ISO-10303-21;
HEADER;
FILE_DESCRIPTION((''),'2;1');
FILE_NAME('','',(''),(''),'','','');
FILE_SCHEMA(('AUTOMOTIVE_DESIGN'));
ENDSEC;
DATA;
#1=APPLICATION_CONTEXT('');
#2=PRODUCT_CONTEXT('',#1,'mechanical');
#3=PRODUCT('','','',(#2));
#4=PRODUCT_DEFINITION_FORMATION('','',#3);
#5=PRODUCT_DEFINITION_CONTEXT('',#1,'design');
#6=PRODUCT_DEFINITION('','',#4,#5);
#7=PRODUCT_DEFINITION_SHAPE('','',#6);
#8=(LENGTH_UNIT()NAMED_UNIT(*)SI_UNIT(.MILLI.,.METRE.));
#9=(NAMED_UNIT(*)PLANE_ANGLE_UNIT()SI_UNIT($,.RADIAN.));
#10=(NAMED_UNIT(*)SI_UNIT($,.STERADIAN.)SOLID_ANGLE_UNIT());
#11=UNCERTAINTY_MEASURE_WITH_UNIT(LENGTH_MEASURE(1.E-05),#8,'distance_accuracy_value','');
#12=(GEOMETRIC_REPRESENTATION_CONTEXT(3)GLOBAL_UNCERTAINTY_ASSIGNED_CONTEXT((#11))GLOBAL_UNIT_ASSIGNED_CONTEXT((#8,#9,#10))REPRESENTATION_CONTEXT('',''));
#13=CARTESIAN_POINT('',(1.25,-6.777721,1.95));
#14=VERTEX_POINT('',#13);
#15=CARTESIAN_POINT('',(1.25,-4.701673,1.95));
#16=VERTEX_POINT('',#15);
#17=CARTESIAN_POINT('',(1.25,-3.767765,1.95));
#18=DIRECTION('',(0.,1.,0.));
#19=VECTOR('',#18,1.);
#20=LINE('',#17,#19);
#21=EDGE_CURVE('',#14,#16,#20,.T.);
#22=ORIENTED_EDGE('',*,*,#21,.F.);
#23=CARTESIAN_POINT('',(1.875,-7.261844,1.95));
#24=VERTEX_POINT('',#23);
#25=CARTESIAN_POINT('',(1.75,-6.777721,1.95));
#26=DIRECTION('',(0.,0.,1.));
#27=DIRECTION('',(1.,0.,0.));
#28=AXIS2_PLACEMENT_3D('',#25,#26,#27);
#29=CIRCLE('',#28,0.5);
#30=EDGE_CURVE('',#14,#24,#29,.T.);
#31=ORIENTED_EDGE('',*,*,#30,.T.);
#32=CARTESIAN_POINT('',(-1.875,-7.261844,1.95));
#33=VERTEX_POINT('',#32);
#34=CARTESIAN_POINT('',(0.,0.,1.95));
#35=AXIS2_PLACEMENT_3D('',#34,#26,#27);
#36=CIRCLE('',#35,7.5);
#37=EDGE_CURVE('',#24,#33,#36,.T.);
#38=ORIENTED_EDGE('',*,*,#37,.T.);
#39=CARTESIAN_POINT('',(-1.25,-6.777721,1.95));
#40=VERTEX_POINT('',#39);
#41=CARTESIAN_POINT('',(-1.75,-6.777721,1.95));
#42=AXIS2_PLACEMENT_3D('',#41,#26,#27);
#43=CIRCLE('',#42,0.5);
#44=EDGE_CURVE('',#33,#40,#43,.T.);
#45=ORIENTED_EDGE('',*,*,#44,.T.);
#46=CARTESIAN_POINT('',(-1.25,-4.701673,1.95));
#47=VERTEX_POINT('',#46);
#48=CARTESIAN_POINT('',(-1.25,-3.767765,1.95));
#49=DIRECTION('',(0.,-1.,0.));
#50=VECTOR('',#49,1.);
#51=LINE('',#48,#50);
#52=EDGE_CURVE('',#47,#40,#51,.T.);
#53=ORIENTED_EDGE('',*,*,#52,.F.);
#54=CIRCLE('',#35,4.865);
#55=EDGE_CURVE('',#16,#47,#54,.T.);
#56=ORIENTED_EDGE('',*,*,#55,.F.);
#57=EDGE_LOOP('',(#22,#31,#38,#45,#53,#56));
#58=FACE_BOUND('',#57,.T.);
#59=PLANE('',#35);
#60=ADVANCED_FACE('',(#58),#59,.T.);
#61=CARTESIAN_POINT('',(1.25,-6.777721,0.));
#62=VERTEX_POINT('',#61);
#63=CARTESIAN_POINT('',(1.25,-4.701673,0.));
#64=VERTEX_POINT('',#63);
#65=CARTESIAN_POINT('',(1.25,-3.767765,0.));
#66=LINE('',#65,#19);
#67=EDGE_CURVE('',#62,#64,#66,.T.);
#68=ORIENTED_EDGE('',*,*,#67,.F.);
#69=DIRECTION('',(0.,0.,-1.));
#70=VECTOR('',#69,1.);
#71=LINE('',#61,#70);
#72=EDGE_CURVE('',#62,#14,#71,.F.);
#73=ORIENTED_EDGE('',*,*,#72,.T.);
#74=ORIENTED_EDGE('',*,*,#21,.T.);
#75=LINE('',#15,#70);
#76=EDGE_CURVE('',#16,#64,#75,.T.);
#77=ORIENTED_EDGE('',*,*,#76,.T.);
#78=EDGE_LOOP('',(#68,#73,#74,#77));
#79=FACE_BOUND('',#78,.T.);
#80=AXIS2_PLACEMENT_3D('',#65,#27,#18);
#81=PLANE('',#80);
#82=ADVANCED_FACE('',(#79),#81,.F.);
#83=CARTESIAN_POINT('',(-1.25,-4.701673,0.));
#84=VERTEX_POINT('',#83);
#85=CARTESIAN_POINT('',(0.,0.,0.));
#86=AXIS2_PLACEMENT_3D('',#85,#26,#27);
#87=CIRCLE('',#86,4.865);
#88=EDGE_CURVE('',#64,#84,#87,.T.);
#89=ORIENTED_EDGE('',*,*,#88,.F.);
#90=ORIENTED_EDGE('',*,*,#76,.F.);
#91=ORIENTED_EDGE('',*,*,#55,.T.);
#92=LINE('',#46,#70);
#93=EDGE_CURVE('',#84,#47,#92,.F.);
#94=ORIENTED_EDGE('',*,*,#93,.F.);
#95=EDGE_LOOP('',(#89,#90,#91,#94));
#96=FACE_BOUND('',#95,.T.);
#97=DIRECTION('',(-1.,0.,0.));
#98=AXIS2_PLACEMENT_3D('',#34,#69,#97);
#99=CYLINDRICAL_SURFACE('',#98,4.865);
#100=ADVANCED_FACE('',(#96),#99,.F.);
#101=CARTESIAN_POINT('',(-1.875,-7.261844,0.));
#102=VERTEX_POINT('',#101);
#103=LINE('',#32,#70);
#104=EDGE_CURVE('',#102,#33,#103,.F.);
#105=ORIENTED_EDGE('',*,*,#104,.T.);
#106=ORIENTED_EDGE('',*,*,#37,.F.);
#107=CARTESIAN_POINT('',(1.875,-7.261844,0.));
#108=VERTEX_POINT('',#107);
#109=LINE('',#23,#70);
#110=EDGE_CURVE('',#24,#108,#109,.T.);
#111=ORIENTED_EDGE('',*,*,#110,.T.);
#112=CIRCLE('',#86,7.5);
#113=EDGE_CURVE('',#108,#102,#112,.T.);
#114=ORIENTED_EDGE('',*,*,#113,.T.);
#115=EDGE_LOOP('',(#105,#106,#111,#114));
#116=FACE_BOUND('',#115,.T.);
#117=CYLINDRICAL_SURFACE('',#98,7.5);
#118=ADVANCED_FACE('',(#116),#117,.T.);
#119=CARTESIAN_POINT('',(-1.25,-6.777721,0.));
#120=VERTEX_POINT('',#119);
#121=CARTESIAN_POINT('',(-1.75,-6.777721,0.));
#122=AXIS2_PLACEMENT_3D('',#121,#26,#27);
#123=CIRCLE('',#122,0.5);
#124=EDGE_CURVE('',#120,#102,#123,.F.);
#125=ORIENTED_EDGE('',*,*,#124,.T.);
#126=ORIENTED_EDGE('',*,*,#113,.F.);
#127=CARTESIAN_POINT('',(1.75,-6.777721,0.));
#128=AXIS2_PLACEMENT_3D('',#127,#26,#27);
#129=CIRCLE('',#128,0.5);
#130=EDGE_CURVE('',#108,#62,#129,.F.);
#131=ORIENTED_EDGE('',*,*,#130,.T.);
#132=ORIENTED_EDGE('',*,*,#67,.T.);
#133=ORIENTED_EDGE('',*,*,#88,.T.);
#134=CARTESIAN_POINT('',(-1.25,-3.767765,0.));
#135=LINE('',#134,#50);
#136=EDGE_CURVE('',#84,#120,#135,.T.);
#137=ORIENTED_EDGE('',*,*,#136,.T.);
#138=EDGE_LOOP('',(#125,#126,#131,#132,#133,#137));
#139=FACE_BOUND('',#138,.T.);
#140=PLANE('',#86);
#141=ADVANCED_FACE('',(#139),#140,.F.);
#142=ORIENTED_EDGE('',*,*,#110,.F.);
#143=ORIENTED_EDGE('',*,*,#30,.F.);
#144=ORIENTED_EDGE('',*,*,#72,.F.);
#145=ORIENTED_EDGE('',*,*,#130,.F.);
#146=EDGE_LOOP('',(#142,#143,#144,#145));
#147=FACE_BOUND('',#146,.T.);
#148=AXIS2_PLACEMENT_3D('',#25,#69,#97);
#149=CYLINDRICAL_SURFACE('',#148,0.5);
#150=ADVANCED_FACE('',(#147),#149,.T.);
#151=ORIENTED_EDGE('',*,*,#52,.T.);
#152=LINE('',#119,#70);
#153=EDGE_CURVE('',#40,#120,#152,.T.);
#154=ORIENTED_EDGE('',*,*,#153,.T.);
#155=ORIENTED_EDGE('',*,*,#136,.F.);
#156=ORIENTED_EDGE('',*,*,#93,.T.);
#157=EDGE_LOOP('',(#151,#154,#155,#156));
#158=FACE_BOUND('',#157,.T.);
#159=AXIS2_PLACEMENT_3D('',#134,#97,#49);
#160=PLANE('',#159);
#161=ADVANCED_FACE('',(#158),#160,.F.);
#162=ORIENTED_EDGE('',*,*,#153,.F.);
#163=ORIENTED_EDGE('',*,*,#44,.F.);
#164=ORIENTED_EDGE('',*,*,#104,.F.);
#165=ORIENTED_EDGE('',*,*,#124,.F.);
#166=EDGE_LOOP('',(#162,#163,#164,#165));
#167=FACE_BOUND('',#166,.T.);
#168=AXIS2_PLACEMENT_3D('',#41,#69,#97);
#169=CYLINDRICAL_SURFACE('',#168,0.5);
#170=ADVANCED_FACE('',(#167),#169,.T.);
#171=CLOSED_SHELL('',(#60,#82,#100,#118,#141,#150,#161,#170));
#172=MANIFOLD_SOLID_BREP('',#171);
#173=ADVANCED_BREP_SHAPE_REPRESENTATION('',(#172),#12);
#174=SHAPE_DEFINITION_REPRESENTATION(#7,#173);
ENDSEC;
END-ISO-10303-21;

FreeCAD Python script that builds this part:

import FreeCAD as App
import Part
import Sketcher

V = App.Vector
Q = App.Units.Quantity


def edges_at(feature, points):
    """Names of the edges that pass closest to the given points."""
    edges = feature.Shape.Edges
    near = lambda p: min(range(len(edges)), key=lambda i: edges[i].distToShape(Part.Vertex(*p))[0])
    return sorted({f"Edge{near(p) + 1}" for p in points})


def add_polygon(sketch, points):
    """Adds a closed chain of lines whose ends are joined by coincident constraints."""
    first, n = sketch.GeometryCount, len(points)
    for a, b in zip(points, points[1:] + points[:1]):
        sketch.addGeometry(Part.LineSegment(App.Vector(*a, 0), App.Vector(*b, 0)), False)
    for i in range(n):
        sketch.addConstraint(Sketcher.Constraint("Coincident", first + i, 2, first + (i + 1) % n, 1))

doc = App.newDocument("Part")
body = doc.addObject("PartDesign::Body", "Body")

# Sketch on XY plane
sketch1 = doc.addObject("Sketcher::SketchObject", "Sketch")
body.addObject(sketch1)
sketch1.AttachmentSupport = (doc.XY_Plane, [""])
sketch1.MapMode = "FlatFace"
sketch1.addGeometry(Part.Circle(V(0, 0, 0), V(0, 0, 1), 7.5), False)
sketch1.addGeometry(Part.Circle(V(0, 0, 0), V(0, 0, 1), 4.865), False)
sketch1.addConstraint(Sketcher.Constraint("Coincident", 0, 3, -1, 1))
sketch1.addConstraint(Sketcher.Constraint("Coincident", 1, 3, -1, 1))
sketch1.addConstraint(Sketcher.Constraint("Diameter", 0, Q("15 mm")))
sketch1.addConstraint(Sketcher.Constraint("Diameter", 1, Q("9.73 mm")))
pad1 = doc.addObject("PartDesign::Pad", "Pad")
body.addObject(pad1)
pad1.Profile = sketch1
pad1.Length = 1.95

# Sketch on XY plane
sketch2 = doc.addObject("Sketcher::SketchObject", "Sketch001")
body.addObject(sketch2)
sketch2.AttachmentSupport = (doc.XY_Plane, [""])
sketch2.MapMode = "FlatFace"
sketch2.AttachmentOffset = App.Placement(V(0, 0, 1.95), App.Rotation())
add_polygon(sketch2, [(-1.25, -3.767765), (-1.25, -8.73588), (1.25, -8.73588), (1.25, -3.767765)])  # lines 0-3
sketch2.addConstraint(Sketcher.Constraint("Vertical", 0))
sketch2.addConstraint(Sketcher.Constraint("Horizontal", 1))
sketch2.addConstraint(Sketcher.Constraint("Vertical", 2))
sketch2.addConstraint(Sketcher.Constraint("Horizontal", 3))
sketch2.addConstraint(Sketcher.Constraint("DistanceX", 1, 1, 1, 2, Q("2.5 mm")))
sketch2.addConstraint(Sketcher.Constraint("DistanceX", 0, 2, -1, 1, Q("1.25 mm")))
sketch2.addConstraint(Sketcher.Constraint("DistanceY", 0, 2, 0, 1, Q("4.968115 mm")))
sketch2.addConstraint(Sketcher.Constraint("DistanceY", 0, 2, -1, 1, Q("8.73588 mm")))
pocket1 = doc.addObject("PartDesign::Pocket", "Pocket")
body.addObject(pocket1)
pocket1.Profile = sketch2
pocket1.Type = "ThroughAll"
doc.recompute()

fillet = doc.addObject("PartDesign::Fillet", "Fillet")
body.addObject(fillet)
fillet.Base = (pocket1, edges_at(pocket1, [(-1.25, -7.395, 0.975), (1.25, -7.395, 0.975)]))
fillet.Radius = 0.5

doc.recompute()
